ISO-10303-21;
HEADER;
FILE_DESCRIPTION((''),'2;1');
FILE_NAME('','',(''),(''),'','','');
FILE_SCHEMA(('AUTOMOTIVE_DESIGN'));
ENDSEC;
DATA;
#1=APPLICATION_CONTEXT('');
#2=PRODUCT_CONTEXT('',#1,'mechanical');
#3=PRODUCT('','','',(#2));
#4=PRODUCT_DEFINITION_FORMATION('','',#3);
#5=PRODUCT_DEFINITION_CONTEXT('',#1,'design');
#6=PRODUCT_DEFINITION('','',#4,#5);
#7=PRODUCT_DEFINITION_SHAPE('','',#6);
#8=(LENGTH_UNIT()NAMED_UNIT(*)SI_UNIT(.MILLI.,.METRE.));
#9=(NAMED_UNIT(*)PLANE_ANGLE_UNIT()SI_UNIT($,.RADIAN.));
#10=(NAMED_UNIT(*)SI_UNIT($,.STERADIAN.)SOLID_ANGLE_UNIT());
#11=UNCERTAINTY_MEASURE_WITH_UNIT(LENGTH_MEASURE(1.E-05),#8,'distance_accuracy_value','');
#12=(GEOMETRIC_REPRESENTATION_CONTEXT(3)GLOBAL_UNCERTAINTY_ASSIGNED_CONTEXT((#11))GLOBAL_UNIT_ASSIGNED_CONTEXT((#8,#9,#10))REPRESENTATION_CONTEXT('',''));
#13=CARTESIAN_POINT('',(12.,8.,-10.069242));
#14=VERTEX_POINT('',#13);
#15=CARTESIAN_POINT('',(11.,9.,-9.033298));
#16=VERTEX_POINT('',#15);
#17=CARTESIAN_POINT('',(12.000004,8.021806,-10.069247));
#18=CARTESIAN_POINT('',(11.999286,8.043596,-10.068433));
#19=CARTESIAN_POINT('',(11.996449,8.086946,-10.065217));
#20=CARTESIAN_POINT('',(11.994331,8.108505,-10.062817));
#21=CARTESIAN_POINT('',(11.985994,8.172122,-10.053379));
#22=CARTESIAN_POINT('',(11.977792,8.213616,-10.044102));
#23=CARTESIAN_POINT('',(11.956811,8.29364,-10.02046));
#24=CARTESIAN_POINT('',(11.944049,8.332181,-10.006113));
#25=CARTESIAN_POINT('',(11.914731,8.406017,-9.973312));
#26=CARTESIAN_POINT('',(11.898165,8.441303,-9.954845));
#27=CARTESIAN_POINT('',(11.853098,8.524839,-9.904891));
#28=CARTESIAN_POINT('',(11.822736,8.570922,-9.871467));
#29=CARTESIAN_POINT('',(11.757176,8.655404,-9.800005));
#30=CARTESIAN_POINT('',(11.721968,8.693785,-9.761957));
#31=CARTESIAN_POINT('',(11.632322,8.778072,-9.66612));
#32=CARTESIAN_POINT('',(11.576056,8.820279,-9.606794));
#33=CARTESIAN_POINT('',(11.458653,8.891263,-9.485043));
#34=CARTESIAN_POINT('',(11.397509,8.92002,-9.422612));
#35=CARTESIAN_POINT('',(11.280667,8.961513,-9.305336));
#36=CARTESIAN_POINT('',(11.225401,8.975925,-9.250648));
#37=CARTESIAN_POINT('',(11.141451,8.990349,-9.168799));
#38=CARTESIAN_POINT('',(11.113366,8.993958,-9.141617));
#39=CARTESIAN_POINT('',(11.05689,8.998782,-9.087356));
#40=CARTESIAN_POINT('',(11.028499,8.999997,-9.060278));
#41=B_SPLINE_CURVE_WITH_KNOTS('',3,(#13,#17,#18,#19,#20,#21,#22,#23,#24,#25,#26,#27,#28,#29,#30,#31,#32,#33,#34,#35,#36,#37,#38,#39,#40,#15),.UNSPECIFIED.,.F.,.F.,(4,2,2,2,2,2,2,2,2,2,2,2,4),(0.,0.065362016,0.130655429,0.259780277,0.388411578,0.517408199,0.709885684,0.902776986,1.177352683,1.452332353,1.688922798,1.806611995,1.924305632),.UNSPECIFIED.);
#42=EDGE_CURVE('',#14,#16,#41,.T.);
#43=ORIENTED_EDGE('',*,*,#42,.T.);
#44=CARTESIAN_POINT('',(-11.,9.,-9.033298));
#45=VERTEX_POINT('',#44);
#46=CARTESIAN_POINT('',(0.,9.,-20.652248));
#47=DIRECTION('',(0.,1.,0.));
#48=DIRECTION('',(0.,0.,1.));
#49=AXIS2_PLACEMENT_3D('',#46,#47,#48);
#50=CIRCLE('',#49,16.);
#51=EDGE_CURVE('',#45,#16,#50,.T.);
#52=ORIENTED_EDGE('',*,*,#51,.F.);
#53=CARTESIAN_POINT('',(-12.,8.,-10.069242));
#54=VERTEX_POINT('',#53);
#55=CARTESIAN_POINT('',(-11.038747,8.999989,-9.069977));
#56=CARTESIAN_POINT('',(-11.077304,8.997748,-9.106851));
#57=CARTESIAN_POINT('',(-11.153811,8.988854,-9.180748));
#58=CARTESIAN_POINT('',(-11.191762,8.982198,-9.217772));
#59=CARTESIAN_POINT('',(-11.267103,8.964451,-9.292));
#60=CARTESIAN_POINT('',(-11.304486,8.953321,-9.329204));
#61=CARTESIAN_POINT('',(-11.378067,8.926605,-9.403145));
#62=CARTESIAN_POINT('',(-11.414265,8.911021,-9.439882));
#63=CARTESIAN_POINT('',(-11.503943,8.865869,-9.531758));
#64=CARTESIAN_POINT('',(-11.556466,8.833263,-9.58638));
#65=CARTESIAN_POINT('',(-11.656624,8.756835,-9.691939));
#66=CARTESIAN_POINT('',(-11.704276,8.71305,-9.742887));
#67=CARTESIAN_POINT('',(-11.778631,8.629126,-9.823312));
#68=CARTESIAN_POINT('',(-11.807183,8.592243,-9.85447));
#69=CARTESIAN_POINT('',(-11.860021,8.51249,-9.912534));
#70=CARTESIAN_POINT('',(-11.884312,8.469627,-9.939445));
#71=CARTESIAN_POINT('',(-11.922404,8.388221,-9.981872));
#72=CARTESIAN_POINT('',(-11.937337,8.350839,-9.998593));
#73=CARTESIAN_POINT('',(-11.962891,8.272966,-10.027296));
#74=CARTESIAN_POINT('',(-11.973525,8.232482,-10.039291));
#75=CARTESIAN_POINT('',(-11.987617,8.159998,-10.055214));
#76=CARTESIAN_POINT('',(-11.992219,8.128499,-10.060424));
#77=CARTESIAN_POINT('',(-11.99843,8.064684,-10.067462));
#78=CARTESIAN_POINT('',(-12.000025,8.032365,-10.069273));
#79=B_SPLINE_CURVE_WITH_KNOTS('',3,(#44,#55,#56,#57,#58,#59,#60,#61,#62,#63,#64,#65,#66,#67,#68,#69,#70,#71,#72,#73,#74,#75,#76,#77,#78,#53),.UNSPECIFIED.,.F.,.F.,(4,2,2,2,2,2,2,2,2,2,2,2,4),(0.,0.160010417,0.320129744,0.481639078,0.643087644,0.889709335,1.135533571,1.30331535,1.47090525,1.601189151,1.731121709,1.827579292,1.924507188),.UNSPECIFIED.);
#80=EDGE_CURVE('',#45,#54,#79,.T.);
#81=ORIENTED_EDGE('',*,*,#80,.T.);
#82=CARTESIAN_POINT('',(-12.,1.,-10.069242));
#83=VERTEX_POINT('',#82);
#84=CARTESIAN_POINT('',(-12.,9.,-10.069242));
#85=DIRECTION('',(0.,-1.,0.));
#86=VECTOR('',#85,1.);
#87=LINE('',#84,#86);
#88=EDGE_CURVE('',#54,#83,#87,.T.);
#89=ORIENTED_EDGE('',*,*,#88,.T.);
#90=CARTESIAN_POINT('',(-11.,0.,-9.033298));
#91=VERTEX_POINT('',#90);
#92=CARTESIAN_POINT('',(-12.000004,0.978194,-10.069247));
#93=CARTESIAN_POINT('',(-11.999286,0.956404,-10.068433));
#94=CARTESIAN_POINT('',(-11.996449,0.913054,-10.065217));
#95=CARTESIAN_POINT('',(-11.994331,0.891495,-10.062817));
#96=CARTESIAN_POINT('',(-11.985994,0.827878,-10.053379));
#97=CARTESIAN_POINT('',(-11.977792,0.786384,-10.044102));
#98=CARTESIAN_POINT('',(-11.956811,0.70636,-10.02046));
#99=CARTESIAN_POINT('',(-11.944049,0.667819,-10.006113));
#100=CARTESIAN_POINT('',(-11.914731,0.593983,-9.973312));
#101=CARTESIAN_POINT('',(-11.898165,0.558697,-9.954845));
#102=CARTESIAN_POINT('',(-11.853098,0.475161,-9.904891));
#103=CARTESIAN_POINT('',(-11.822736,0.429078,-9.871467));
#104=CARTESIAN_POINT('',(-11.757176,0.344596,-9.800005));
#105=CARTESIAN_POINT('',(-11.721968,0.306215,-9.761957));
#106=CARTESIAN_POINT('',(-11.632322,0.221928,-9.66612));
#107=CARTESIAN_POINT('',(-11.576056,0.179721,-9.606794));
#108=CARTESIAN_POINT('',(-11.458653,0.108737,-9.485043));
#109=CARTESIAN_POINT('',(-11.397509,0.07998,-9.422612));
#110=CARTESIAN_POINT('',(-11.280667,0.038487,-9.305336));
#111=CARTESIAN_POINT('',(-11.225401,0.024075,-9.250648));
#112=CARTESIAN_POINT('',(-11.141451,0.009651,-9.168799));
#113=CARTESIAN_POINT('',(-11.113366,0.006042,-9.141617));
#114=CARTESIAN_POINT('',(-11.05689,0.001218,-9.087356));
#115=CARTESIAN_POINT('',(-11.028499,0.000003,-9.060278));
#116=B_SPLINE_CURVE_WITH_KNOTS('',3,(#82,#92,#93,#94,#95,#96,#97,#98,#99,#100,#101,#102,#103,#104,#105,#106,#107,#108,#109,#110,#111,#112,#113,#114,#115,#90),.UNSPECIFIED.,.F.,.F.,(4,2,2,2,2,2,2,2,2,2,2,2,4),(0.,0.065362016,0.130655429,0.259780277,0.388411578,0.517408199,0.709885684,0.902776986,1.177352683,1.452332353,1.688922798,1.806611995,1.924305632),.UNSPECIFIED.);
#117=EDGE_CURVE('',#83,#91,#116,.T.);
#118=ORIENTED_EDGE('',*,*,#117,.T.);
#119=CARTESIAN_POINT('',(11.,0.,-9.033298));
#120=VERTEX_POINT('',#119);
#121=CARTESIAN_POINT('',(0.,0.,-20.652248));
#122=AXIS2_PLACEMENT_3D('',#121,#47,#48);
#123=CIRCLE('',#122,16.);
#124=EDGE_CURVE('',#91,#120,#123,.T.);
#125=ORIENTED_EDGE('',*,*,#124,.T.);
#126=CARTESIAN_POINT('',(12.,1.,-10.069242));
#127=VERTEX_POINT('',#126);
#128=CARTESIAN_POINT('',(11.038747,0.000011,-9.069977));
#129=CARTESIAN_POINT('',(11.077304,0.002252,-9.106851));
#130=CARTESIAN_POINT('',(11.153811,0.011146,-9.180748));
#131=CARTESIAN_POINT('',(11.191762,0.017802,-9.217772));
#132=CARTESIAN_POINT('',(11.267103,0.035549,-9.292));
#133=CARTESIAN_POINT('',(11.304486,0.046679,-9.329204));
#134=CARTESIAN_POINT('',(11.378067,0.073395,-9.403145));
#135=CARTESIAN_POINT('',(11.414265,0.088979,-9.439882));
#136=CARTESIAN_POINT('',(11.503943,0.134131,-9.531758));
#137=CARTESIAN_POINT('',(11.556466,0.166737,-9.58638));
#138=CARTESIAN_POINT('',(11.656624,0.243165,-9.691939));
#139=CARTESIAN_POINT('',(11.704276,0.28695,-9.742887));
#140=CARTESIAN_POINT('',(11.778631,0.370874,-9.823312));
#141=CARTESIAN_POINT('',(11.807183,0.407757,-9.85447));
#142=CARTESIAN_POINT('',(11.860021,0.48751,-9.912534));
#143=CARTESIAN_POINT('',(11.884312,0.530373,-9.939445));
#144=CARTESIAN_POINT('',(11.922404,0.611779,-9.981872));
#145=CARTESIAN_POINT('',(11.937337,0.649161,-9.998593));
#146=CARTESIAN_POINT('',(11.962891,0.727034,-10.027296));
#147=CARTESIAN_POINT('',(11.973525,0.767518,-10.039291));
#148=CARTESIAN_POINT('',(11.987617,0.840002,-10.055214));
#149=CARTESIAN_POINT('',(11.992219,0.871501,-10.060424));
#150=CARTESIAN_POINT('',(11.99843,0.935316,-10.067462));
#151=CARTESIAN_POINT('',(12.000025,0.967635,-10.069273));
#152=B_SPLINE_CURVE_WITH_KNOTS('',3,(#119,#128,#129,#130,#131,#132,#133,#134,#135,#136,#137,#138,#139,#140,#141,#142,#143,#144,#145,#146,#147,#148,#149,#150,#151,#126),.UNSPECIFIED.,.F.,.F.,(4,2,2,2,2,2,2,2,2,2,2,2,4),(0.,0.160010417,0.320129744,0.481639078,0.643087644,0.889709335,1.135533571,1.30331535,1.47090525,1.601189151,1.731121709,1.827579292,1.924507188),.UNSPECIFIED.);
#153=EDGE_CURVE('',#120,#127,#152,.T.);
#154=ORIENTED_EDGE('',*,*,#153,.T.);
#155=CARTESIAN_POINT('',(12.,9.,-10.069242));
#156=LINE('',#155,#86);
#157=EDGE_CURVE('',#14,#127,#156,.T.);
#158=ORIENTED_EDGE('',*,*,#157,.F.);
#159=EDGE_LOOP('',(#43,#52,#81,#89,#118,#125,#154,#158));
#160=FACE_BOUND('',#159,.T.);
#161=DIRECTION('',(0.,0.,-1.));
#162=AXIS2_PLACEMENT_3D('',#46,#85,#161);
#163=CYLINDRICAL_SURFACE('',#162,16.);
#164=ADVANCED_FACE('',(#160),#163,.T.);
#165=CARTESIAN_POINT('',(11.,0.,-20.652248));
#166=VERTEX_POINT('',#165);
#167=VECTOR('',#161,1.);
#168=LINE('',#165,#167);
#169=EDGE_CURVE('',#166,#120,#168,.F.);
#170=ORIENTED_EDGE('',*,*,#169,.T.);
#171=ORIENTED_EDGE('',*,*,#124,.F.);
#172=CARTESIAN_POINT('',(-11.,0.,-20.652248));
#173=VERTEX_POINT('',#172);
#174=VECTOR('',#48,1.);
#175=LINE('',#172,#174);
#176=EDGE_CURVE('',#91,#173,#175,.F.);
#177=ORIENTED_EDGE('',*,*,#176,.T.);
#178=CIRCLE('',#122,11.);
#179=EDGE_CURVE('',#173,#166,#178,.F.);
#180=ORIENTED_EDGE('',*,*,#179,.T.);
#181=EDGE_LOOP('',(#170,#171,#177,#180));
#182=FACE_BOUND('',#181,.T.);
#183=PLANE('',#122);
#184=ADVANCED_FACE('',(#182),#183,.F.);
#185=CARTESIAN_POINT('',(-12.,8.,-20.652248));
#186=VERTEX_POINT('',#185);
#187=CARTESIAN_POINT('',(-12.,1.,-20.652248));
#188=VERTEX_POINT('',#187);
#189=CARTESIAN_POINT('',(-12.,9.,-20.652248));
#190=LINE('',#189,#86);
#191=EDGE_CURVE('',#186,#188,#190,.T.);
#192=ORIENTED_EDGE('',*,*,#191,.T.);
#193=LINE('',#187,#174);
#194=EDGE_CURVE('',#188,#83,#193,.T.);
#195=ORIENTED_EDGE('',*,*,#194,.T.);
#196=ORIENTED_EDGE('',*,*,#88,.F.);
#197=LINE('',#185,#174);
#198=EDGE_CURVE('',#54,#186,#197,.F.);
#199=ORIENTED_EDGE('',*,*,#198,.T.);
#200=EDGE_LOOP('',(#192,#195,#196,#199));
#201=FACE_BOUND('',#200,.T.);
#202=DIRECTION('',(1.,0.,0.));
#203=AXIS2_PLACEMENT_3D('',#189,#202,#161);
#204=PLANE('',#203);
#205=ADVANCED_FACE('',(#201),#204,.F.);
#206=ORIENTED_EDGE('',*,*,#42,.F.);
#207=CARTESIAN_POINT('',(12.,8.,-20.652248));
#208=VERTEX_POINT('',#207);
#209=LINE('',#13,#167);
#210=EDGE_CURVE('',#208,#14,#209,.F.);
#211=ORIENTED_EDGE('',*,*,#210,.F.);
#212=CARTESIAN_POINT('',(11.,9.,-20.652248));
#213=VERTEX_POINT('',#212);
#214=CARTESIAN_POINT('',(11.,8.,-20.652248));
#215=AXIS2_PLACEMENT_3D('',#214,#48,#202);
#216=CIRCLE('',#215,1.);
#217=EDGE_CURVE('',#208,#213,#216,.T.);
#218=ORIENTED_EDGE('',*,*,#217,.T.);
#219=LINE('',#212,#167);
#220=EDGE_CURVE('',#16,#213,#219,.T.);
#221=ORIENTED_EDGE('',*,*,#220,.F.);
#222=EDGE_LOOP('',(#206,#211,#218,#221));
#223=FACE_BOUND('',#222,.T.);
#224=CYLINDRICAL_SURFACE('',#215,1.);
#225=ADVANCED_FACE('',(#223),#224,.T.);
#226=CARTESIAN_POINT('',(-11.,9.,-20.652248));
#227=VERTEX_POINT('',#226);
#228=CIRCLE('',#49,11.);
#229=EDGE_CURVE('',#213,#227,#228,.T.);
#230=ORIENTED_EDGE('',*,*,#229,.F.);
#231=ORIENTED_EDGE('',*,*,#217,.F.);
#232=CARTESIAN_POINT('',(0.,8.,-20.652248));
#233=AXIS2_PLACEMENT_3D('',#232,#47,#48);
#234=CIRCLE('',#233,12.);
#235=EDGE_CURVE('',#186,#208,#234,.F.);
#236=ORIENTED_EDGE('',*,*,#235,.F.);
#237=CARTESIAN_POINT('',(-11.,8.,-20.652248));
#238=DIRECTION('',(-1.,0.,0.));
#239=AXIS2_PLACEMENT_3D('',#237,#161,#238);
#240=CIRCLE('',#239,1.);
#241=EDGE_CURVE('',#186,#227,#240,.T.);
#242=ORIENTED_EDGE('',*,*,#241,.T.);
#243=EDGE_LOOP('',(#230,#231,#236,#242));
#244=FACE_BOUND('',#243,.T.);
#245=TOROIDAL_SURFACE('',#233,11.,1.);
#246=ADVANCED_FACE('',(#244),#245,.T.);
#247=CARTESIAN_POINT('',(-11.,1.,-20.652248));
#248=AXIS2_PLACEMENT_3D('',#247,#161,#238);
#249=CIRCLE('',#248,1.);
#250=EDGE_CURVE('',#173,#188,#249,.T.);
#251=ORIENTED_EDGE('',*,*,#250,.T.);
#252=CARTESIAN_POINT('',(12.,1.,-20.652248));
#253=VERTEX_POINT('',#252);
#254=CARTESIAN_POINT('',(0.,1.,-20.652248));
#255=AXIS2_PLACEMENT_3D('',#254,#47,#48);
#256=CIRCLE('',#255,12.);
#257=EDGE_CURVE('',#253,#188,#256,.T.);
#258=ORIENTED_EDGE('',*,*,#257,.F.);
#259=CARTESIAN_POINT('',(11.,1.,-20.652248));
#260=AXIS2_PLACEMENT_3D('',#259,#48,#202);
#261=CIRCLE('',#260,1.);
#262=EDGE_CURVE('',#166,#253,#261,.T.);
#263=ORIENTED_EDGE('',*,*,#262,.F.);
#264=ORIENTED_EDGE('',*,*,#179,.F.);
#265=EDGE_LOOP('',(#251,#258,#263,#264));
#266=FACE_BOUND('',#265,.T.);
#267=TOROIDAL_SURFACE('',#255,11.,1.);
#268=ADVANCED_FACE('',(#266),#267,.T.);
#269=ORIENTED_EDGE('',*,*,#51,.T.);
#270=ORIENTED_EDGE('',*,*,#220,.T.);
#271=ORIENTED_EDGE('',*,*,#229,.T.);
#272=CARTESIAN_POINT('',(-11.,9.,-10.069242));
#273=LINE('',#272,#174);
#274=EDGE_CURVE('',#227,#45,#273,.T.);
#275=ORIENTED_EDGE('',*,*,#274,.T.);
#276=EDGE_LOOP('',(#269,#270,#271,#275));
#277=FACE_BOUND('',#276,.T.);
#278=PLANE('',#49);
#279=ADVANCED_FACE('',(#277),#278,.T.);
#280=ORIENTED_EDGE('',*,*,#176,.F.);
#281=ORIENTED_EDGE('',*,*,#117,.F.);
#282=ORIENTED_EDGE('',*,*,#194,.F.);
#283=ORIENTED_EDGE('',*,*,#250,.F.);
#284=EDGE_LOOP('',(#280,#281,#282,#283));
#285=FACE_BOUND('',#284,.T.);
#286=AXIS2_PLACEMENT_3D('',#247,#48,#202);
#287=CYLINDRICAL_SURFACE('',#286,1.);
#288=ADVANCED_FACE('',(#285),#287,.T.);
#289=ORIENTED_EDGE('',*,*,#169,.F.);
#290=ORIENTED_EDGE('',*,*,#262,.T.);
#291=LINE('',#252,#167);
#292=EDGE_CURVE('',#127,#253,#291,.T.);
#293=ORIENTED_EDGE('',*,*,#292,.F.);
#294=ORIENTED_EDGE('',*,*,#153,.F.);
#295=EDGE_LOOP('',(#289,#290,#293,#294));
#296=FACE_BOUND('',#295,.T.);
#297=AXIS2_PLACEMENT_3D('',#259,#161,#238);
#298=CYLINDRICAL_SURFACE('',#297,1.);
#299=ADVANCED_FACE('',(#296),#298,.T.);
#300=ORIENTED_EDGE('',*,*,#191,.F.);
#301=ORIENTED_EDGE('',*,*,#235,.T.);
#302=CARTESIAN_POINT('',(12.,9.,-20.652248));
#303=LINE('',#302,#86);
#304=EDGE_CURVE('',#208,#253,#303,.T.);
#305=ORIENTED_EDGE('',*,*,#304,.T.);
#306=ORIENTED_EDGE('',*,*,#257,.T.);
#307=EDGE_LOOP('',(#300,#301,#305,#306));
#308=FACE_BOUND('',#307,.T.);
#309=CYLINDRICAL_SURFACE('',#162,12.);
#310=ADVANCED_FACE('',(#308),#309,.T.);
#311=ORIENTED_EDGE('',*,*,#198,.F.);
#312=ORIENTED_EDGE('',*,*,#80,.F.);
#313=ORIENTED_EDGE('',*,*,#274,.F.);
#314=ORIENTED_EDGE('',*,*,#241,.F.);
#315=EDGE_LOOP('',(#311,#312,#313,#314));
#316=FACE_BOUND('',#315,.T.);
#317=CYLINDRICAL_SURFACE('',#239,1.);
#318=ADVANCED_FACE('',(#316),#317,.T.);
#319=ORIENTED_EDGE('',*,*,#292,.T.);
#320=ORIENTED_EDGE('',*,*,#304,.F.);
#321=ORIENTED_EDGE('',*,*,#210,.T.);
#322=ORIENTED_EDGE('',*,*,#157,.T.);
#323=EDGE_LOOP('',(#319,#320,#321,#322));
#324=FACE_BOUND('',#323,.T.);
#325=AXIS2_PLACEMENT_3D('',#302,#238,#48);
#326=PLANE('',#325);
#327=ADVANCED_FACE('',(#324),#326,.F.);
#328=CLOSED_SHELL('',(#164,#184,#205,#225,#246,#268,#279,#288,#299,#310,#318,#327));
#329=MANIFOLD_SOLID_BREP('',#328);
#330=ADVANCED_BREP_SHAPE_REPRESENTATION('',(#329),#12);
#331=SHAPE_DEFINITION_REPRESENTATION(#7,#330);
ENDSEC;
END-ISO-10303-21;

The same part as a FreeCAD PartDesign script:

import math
import FreeCAD as App
import Part
import Sketcher

V = App.Vector
Q = App.Units.Quantity


def edges_at(feature, points):
    """Names of the edges that pass closest to the given points."""
    edges = feature.Shape.Edges
    near = lambda p: min(range(len(edges)), key=lambda i: edges[i].distToShape(Part.Vertex(*p))[0])
    return sorted({f"Edge{near(p) + 1}" for p in points})

doc = App.newDocument("Part")
params = doc.addObject("Spreadsheet::Sheet", "Params")
for row, (alias, value) in enumerate([
    ("sketch1_radius", "16 mm"),
    ("sketch1_radius2", "12 mm"),
    ("pad1_length", "9 mm"),
    ("fillet_radius", "1 mm"),
], start=1):
    params.set(f"A{row}", alias)
    params.set(f"B{row}", "=" + value)
    params.setAlias(f"B{row}", alias)

body = doc.addObject("PartDesign::Body", "Body")

sketch1 = body.newObject("Sketcher::SketchObject", "Sketch")
sketch1.AttachmentSupport = (doc.getObject("XZ_Plane"), [""])
sketch1.MapMode = "FlatFace"
sketch1.addGeometry([
    Part.LineSegment(V(-12, -21, 0), V(-12, -10, 0)),
    Part.ArcOfCircle(Part.Circle(V(0, -21, 0), V(0, 0, 1), 16), math.radians(41), math.radians(139)),
    Part.LineSegment(V(12, -10, 0), V(12, -21, 0)),
    Part.ArcOfCircle(Part.Circle(V(0, -21, 0), V(0, 0, 1), 12), math.radians(180), math.radians(360)),
], False)
sketch1.addConstraint([
    Sketcher.Constraint("Coincident", 0, 2, 1, 2),
    Sketcher.Constraint("Coincident", 1, 1, 2, 1),
    Sketcher.Constraint("Tangent", 2, 2, 3, 2),
    Sketcher.Constraint("Tangent", 3, 1, 0, 1),
    Sketcher.Constraint("Vertical", 0),
    Sketcher.Constraint("Vertical", 2),
    Sketcher.Constraint("Coincident", 3, 3, 1, 3),
    Sketcher.Constraint("PointOnObject", 1, 3, -2),
    Sketcher.Constraint("Radius", 1, Q("16 mm")),
    Sketcher.Constraint("Radius", 3, Q("12 mm")),
    Sketcher.Constraint("DistanceY", 1, 3, -1, 1, Q("20.652248 mm")),
])
sketch1.setExpression("Constraints[8]", "Params.sketch1_radius")
sketch1.setExpression("Constraints[9]", "Params.sketch1_radius2")
pad1 = body.newObject("PartDesign::Pad", "Pad")
pad1.Profile = sketch1
pad1.setExpression("Length", "Params.pad1_length")
pad1.Reversed = True
doc.recompute()

fillet = body.newObject("PartDesign::Fillet", "Fillet")
fillet.Base = (pad1, edges_at(pad1, [
    (12, 9, -15.361),
    (0, 9, -32.652),
    (12, 0, -15.361),
    (-12, 0, -15.361),
    (0, 0, -32.652),
    (-12, 9, -15.361),
]))
fillet.setExpression("Radius", "Params.fillet_radius")

doc.recompute()
